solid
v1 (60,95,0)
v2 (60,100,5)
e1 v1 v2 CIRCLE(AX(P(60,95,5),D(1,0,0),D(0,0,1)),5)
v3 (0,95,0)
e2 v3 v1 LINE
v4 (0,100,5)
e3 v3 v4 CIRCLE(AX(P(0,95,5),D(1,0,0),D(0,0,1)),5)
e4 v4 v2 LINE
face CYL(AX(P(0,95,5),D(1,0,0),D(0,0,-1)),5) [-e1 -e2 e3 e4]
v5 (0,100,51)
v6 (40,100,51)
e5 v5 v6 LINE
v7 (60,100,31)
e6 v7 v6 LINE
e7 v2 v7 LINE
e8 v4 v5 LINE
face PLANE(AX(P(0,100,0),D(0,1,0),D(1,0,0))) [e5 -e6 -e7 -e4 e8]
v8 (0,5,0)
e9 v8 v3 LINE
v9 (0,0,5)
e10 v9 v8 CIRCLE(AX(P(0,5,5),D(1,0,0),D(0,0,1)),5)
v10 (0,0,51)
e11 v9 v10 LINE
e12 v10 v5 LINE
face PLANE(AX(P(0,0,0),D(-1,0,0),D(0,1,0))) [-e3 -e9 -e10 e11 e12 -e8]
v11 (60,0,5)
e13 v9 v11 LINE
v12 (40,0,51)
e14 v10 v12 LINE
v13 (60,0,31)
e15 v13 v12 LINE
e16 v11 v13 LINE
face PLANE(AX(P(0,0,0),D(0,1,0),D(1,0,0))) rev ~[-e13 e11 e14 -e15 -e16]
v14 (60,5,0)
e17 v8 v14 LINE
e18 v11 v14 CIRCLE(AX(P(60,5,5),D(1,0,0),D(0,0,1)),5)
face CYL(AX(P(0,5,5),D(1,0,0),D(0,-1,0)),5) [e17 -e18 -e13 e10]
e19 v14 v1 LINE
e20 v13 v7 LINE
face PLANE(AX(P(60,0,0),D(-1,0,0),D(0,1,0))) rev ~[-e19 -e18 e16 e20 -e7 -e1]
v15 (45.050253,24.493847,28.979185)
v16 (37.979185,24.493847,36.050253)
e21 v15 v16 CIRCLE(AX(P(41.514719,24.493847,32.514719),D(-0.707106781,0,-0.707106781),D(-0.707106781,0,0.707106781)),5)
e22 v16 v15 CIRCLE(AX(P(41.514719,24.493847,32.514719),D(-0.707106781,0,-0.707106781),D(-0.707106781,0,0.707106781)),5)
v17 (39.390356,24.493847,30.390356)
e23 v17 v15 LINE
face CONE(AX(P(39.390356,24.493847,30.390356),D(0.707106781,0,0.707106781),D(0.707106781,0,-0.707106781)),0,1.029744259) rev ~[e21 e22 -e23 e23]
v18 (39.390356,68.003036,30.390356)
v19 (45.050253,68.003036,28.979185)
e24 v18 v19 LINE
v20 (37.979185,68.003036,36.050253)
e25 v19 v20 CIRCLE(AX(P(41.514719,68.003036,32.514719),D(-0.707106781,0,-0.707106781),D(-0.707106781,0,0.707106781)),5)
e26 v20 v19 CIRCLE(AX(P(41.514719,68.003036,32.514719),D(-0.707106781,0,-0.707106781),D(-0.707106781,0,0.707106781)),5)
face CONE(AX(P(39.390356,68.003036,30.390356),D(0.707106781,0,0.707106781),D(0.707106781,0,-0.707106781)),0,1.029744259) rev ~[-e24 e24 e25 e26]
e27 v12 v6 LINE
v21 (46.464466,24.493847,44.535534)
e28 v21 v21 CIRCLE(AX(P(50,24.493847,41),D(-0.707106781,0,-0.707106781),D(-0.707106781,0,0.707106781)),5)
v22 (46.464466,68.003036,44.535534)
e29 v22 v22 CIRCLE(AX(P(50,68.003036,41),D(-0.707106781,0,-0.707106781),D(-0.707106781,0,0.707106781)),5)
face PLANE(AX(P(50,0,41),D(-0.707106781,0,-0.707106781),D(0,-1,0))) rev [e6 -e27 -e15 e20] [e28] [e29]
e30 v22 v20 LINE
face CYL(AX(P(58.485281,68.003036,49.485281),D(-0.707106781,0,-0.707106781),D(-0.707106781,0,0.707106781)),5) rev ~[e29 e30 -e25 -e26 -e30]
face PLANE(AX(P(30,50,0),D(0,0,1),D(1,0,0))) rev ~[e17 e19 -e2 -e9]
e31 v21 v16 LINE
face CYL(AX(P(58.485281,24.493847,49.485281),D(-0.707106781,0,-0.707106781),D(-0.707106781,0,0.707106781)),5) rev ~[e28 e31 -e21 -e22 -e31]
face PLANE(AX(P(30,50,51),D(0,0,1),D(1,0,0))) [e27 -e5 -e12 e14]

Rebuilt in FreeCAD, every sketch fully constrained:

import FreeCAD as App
import Part
import Sketcher

V = App.Vector
Q = App.Units.Quantity


def edges_at(feature, points):
    """Names of the edges that pass closest to the given points."""
    edges = feature.Shape.Edges
    near = lambda p: min(range(len(edges)), key=lambda i: edges[i].distToShape(Part.Vertex(*p))[0])
    return sorted({f"Edge{near(p) + 1}" for p in points})


def add_polygon(sketch, points):
    """Adds a closed chain of lines whose ends are joined by coincident constraints."""
    first, n = sketch.GeometryCount, len(points)
    for a, b in zip(points, points[1:] + points[:1]):
        sketch.addGeometry(Part.LineSegment(App.Vector(*a, 0), App.Vector(*b, 0)), False)
    for i in range(n):
        sketch.addConstraint(Sketcher.Constraint("Coincident", first + i, 2, first + (i + 1) % n, 1))

doc = App.newDocument("Part")
params = doc.addObject("Spreadsheet::Sheet", "Params")
for row, (alias, value) in enumerate([
    ("sketch1_width", "60 mm"),
    ("sketch1_height", "100 mm"),
    ("pad1_length", "51 mm"),
    ("chamfer_size", "20 mm"),
    ("sketch2_diameter", "10 mm"),
    ("hole_diameter", "10 mm"),
    ("hole_depth", "12 mm"),
    ("fillet_radius", "5 mm"),
], start=1):
    params.set(f"A{row}", alias)
    params.set(f"B{row}", "=" + value)
    params.setAlias(f"B{row}", alias)

body = doc.addObject("PartDesign::Body", "Body")

sketch1 = body.newObject("Sketcher::SketchObject", "Sketch")
sketch1.AttachmentSupport = (doc.getObject("XY_Plane"), [""])
sketch1.MapMode = "FlatFace"
add_polygon(sketch1, [(0, 100), (0, 0), (60, 0), (60, 100)])
sketch1.addConstraint([
    Sketcher.Constraint("Vertical", 0),
    Sketcher.Constraint("Horizontal", 1),
    Sketcher.Constraint("Vertical", 2),
    Sketcher.Constraint("Horizontal", 3),
    Sketcher.Constraint("Coincident", 0, 2, -1, 1),
    Sketcher.Constraint("DistanceX", 1, 1, 1, 2, Q("60 mm")),
    Sketcher.Constraint("DistanceY", 0, 2, 0, 1, Q("100 mm")),
])
sketch1.setExpression("Constraints[9]", "Params.sketch1_width")
sketch1.setExpression("Constraints[10]", "Params.sketch1_height")
pad1 = body.newObject("PartDesign::Pad", "Pad")
pad1.Profile = sketch1
pad1.setExpression("Length", "Params.pad1_length")
doc.recompute()

chamfer = body.newObject("PartDesign::Chamfer", "Chamfer")
chamfer.Base = (pad1, edges_at(pad1, [(60, 50, 51)]))
chamfer.setExpression("Size", "Params.chamfer_size")

sketch2 = body.newObject("Sketcher::SketchObject", "Sketch001")
sketch2.Placement = App.Placement(V(45.5, 0, 45.5), App.Rotation(V(0.707106781, 0, -0.707106781), V(0, 0.999999999, 0), V(0.707106781, 0, 0.707106781), "ZXY"))
sketch2.addGeometry([
    Part.Circle(V(6, 24, 0), V(0, 0, 1), 5),
    Part.Circle(V(6, 68, 0), V(0, 0, 1), 5),
], False)
sketch2.addConstraint([
    Sketcher.Constraint("Equal", 0, 1),
    Sketcher.Constraint("Vertical", 0, 3, 1, 3),
    Sketcher.Constraint("Diameter", 0, Q("10 mm")),
    Sketcher.Constraint("DistanceX", -1, 1, 0, 3, Q("6.363961 mm")),
    Sketcher.Constraint("DistanceY", 0, 3, 1, 3, Q("43.509189 mm")),
    Sketcher.Constraint("DistanceY", -1, 1, 0, 3, Q("24.493847 mm")),
])
sketch2.setExpression("Constraints[2]", "Params.sketch2_diameter")
doc.recompute()
hole = body.newObject("PartDesign::Hole", "Hole")
hole.Profile = sketch2
hole.ThreadType = "None"
hole.setExpression("Diameter", "Params.hole_diameter")
hole.DepthType = "Dimension"
hole.setExpression("Depth", "Params.hole_depth")
hole.DrillPoint = "Angled"
hole.DrillPointAngle = 118
doc.recompute()

fillet = body.newObject("PartDesign::Fillet", "Fillet")
fillet.Base = (hole, edges_at(hole, [(30, 100, 0), (30, 0, 0)]))
fillet.setExpression("Radius", "Params.fillet_radius")

doc.recompute()
